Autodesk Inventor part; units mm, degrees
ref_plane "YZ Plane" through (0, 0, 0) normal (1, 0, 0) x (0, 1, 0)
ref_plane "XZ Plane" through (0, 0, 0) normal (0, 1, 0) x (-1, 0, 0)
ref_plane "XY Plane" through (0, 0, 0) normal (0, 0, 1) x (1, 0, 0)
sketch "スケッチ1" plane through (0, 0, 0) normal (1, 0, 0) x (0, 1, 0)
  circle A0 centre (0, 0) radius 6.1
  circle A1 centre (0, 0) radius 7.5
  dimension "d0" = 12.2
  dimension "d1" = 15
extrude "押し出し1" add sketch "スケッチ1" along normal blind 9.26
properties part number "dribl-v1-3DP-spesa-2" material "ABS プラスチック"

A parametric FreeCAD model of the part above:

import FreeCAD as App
import Part
import Sketcher
from FreeCAD import Vector

doc = App.newDocument("Part")
body = doc.addObject("PartDesign::Body", "Body")

sketch1 = doc.addObject("Sketcher::SketchObject", "Sketch")
body.addObject(sketch1)
sketch1.AttachmentSupport = (doc.YZ_Plane, [""])
sketch1.MapMode = "FlatFace"
sketch1.addGeometry([
    Part.Circle(Vector(0, 0, 0), Vector(0, 0, 1), 8),
    Part.Circle(Vector(0, 0, 0), Vector(0, 0, 1), 6),
], False)
sketch1.addConstraint([
    Sketcher.Constraint("Coincident", 0, 3, -1, 1),
    Sketcher.Constraint("Coincident", 1, 3, -1, 1),
    Sketcher.Constraint("Diameter", 0, 15.0),
    Sketcher.Constraint("Diameter", 1, 12.2),
])
pad1 = doc.addObject("PartDesign::Pad", "Pad")
body.addObject(pad1)
pad1.Profile = sketch1
pad1.Length = 9.26

doc.recompute()
